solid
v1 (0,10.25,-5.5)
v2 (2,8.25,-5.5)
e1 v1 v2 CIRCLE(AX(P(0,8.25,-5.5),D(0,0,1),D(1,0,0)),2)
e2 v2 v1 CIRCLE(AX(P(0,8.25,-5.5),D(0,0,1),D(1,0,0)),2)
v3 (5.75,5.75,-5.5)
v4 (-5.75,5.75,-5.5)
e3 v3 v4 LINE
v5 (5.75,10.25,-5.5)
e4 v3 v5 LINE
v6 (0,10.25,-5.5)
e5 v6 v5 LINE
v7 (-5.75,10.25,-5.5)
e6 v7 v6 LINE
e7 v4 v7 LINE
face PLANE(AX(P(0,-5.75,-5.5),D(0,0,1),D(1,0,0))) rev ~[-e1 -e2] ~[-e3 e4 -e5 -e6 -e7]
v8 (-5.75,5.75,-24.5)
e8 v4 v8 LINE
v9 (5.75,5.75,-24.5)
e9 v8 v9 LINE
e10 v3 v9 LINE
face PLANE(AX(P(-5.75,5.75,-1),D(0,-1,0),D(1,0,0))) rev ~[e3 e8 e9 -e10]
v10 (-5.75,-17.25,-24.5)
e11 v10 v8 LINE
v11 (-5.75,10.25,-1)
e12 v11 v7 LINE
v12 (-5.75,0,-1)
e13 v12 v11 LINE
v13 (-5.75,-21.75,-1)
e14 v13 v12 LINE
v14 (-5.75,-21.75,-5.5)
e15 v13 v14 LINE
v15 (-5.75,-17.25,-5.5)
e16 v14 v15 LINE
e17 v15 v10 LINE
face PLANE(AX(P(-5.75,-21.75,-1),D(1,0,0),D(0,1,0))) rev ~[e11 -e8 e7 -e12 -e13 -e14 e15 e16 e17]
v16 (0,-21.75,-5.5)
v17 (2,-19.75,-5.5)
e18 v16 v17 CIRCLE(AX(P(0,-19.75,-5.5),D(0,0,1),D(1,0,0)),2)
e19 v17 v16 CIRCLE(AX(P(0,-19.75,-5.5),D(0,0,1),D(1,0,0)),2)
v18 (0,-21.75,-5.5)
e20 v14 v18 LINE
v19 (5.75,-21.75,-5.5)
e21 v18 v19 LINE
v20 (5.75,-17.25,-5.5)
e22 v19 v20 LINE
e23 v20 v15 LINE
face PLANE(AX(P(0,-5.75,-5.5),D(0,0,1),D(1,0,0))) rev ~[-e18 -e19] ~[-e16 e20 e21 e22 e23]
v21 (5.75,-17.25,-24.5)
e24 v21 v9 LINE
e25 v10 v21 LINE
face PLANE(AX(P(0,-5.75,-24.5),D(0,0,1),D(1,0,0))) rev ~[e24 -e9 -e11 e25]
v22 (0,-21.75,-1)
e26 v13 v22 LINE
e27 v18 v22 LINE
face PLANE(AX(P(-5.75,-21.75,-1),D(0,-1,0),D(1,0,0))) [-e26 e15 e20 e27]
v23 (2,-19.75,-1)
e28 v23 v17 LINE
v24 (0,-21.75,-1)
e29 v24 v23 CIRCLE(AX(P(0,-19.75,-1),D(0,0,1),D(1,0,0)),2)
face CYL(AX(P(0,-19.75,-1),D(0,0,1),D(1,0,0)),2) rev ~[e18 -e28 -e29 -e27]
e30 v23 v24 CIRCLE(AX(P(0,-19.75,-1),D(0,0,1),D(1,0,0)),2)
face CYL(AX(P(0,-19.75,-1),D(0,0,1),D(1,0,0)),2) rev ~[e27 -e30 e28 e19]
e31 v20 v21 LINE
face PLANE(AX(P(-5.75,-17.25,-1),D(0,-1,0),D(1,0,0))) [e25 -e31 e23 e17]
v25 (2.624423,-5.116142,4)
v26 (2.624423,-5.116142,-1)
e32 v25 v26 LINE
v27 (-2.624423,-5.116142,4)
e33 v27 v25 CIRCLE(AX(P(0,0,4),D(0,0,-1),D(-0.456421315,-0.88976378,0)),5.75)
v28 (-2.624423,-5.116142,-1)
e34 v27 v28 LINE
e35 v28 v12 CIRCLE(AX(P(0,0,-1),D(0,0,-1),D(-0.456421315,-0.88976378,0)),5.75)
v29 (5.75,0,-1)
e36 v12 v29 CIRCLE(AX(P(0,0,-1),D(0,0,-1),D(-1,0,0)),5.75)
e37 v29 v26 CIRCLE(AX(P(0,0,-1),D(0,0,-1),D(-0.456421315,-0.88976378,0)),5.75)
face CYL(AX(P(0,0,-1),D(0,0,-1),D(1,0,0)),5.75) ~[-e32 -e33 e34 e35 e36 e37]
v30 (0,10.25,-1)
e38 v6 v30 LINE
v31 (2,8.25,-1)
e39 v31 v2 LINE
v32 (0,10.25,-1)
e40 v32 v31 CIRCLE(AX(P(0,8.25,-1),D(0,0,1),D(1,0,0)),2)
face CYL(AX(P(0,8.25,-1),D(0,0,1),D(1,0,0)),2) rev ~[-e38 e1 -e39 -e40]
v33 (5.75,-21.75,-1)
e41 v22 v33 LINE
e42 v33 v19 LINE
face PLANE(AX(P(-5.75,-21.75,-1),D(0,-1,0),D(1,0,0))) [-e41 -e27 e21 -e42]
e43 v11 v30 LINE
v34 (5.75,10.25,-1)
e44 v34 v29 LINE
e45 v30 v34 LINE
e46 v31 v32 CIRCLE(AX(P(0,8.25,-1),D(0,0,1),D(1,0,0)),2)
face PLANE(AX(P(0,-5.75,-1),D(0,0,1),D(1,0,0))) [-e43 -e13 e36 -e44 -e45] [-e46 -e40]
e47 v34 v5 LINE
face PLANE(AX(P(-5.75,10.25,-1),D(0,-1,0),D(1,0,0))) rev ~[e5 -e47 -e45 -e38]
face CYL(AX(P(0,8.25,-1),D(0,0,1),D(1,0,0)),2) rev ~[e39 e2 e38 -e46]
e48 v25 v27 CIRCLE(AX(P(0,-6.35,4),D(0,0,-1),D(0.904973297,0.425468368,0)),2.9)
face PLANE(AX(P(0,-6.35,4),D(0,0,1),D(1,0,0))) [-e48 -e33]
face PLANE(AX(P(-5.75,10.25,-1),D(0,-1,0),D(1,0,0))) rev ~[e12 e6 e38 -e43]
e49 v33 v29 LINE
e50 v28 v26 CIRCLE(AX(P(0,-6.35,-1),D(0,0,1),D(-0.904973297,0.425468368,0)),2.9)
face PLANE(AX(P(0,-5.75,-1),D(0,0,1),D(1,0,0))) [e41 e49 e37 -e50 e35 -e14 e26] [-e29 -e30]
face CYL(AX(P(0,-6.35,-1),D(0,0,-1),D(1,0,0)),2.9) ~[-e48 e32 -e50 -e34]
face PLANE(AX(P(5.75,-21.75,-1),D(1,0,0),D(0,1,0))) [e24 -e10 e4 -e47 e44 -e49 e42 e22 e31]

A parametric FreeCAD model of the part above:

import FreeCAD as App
import Part
import Sketcher
from FreeCAD import Vector
Q = App.Units.Quantity

doc = App.newDocument("Part")
body = doc.addObject("PartDesign::Body", "Body")

sketch1 = doc.addObject("Sketcher::SketchObject", "Sketch")
body.addObject(sketch1)
sketch1.AttachmentSupport = (doc.XY_Plane, [""])
sketch1.MapMode = "FlatFace"
sketch1.addGeometry(Part.Circle(Vector(0, 0, 0), Vector(0, 0, 1), 6), False)
sketch1.addConstraint(Sketcher.Constraint("Coincident", 0, 3, -1, 1))
sketch1.addConstraint(Sketcher.Constraint("Diameter", 0, Q("11.5 mm")))
pad1 = doc.addObject("PartDesign::Pad", "Pad")
body.addObject(pad1)
pad1.Profile = sketch1
pad1.Length = 5

sketch2 = doc.addObject("Sketcher::SketchObject", "Sketch001")
body.addObject(sketch2)
sketch2.AttachmentSupport = (doc.XY_Plane, [""])
sketch2.MapMode = "FlatFace"
sketch2.addGeometry(Part.Circle(Vector(0, -6.3, 0), Vector(0, 0, 1), 2.9), False)
sketch2.addConstraint(Sketcher.Constraint("PointOnObject", 0, 3, -2))
sketch2.addConstraint(Sketcher.Constraint("Diameter", 0, Q("5.8 mm")))
sketch2.addConstraint(Sketcher.Constraint("DistanceY", 0, 3, -1, 1, Q("6.35 mm")))
pad2 = doc.addObject("PartDesign::Pad", "Pad001")
body.addObject(pad2)
pad2.Profile = sketch2
pad2.Length = 5

sketch3 = doc.addObject("Sketcher::SketchObject", "Sketch002")
body.addObject(sketch3)
sketch3.AttachmentSupport = (doc.XY_Plane, [""])
sketch3.MapMode = "FlatFace"
sketch3.addGeometry(Part.LineSegment(Vector(-6, 6, 0), Vector(-6, -17, 0)), False)
sketch3.addGeometry(Part.LineSegment(Vector(-6, -17, 0), Vector(6, -17, 0)), False)
sketch3.addGeometry(Part.LineSegment(Vector(6, -17, 0), Vector(6, 6, 0)), False)
sketch3.addGeometry(Part.LineSegment(Vector(6, 6, 0), Vector(-6, 6, 0)), False)
sketch3.addConstraint(Sketcher.Constraint("Coincident", 0, 2, 1, 1))
sketch3.addConstraint(Sketcher.Constraint("Coincident", 1, 2, 2, 1))
sketch3.addConstraint(Sketcher.Constraint("Coincident", 2, 2, 3, 1))
sketch3.addConstraint(Sketcher.Constraint("Coincident", 3, 2, 0, 1))
sketch3.addConstraint(Sketcher.Constraint("Vertical", 0))
sketch3.addConstraint(Sketcher.Constraint("Horizontal", 1))
sketch3.addConstraint(Sketcher.Constraint("Vertical", 2))
sketch3.addConstraint(Sketcher.Constraint("Horizontal", 3))
sketch3.addConstraint(Sketcher.Constraint("DistanceY", 0, 2, 0, 1, Q("23 mm")))
sketch3.addConstraint(Sketcher.Constraint("DistanceX", 1, 1, 1, 2, Q("11.5 mm")))
sketch3.addConstraint(Sketcher.Constraint("DistanceX", 0, 2, -1, 1, Q("5.75 mm")))
sketch3.addConstraint(Sketcher.Constraint("DistanceY", 0, 2, -1, 1, Q("17.25 mm")))
pad3 = doc.addObject("PartDesign::Pad", "Pad002")
body.addObject(pad3)
pad3.Profile = sketch3
pad3.Length = 23.5
pad3.Reversed = True

sketch4 = doc.addObject("Sketcher::SketchObject", "Sketch003")
body.addObject(sketch4)
sketch4.AttachmentSupport = (doc.XY_Plane, [""])
sketch4.MapMode = "FlatFace"
sketch4.addGeometry(Part.LineSegment(Vector(-6, 10, 0), Vector(-6, -22, 0)), False)
sketch4.addGeometry(Part.LineSegment(Vector(-6, -22, 0), Vector(6, -22, 0)), False)
sketch4.addGeometry(Part.LineSegment(Vector(6, -22, 0), Vector(6, 10, 0)), False)
sketch4.addGeometry(Part.LineSegment(Vector(6, 10, 0), Vector(-6, 10, 0)), False)
sketch4.addConstraint(Sketcher.Constraint("Coincident", 0, 2, 1, 1))
sketch4.addConstraint(Sketcher.Constraint("Coincident", 1, 2, 2, 1))
sketch4.addConstraint(Sketcher.Constraint("Coincident", 2, 2, 3, 1))
sketch4.addConstraint(Sketcher.Constraint("Coincident", 3, 2, 0, 1))
sketch4.addConstraint(Sketcher.Constraint("Vertical", 0))
sketch4.addConstraint(Sketcher.Constraint("Horizontal", 1))
sketch4.addConstraint(Sketcher.Constraint("Vertical", 2))
sketch4.addConstraint(Sketcher.Constraint("Horizontal", 3))
sketch4.addConstraint(Sketcher.Constraint("DistanceY", 0, 2, 0, 1, Q("32 mm")))
sketch4.addConstraint(Sketcher.Constraint("DistanceX", 1, 1, 1, 2, Q("11.5 mm")))
sketch4.addConstraint(Sketcher.Constraint("DistanceX", 0, 2, -1, 1, Q("5.75 mm")))
sketch4.addConstraint(Sketcher.Constraint("DistanceY", 0, 2, -1, 1, Q("21.75 mm")))
pad4 = doc.addObject("PartDesign::Pad", "Pad003")
body.addObject(pad4)
pad4.Profile = sketch4
pad4.Length = 4.5
pad4.Reversed = True

sketch5 = doc.addObject("Sketcher::SketchObject", "Sketch004")
body.addObject(sketch5)
sketch5.AttachmentSupport = (doc.XY_Plane, [""])
sketch5.MapMode = "FlatFace"
sketch5.addGeometry(Part.Circle(Vector(0, 8.2, 0), Vector(0, 0, 1), 2), False)
sketch5.addGeometry(Part.Circle(Vector(0, -19.8, 0), Vector(0, 0, 1), 2), False)
sketch5.addConstraint(Sketcher.Constraint("Equal", 0, 1))
sketch5.addConstraint(Sketcher.Constraint("PointOnObject", 0, 3, -2))
sketch5.addConstraint(Sketcher.Constraint("PointOnObject", 1, 3, -2))
sketch5.addConstraint(Sketcher.Constraint("Diameter", 0, Q("4 mm")))
sketch5.addConstraint(Sketcher.Constraint("DistanceY", 1, 3, 0, 3, Q("28 mm")))
sketch5.addConstraint(Sketcher.Constraint("DistanceY", -1, 1, 0, 3, Q("8.25 mm")))
pocket1 = doc.addObject("PartDesign::Pocket", "Pocket")
body.addObject(pocket1)
pocket1.Profile = sketch5
pocket1.Type = "ThroughAll"
body2 = doc.addObject("PartDesign::Body", "Body001")
doc.recompute()

body.Placement = App.Placement(Vector(0, 0, -1), App.Rotation(Vector(0, 0, 1), 0))
boolean = doc.addObject("PartDesign::Boolean", "Boolean")
body2.addObject(boolean)
boolean.Type = "Fuse"
boolean.addObjects([body])

doc.recompute()
